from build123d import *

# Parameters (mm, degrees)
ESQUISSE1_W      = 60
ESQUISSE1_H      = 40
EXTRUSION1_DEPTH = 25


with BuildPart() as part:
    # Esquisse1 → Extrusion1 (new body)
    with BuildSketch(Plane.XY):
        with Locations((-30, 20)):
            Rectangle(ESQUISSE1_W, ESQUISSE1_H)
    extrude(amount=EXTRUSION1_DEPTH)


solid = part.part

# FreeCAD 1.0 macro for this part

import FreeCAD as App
import Part
import Sketcher
Q = App.Units.Quantity

doc = App.newDocument("Part")
params = doc.addObject("Spreadsheet::Sheet", "Params")
for row, (alias, value) in enumerate([
    ("sketch1_width", "60 mm"),
    ("sketch1_height", "40 mm"),
    ("pad1_length", "25 mm"),
], start=1):
    params.set(f"A{row}", alias)
    params.set(f"B{row}", "=" + value)
    params.setAlias(f"B{row}", alias)

body = doc.addObject("PartDesign::Body", "Body")

# Sketch on XY plane
sketch1 = doc.addObject("Sketcher::SketchObject", "Sketch")
body.addObject(sketch1)
sketch1.AttachmentSupport = (doc.XY_Plane, [""])
sketch1.MapMode = "FlatFace"
sketch1.addGeometry(Part.LineSegment(App.Vector(-60, 40, 0), App.Vector(-60, 0, 0)), False)
sketch1.addGeometry(Part.LineSegment(App.Vector(-60, 0, 0), App.Vector(0, 0, 0)), False)
sketch1.addGeometry(Part.LineSegment(App.Vector(0, 0, 0), App.Vector(0, 40, 0)), False)
sketch1.addGeometry(Part.LineSegment(App.Vector(0, 40, 0), App.Vector(-60, 40, 0)), False)
sketch1.addConstraint(Sketcher.Constraint("Coincident", 0, 2, 1, 1))
sketch1.addConstraint(Sketcher.Constraint("Coincident", 1, 2, 2, 1))
sketch1.addConstraint(Sketcher.Constraint("Coincident", 2, 2, 3, 1))
sketch1.addConstraint(Sketcher.Constraint("Coincident", 3, 2, 0, 1))
sketch1.addConstraint(Sketcher.Constraint("Vertical", 0))
sketch1.addConstraint(Sketcher.Constraint("Horizontal", 1))
sketch1.addConstraint(Sketcher.Constraint("Vertical", 2))
sketch1.addConstraint(Sketcher.Constraint("Horizontal", 3))
sketch1.addConstraint(Sketcher.Constraint("Coincident", 1, 2, -1, 1))
sketch1.addConstraint(Sketcher.Constraint("DistanceX", 1, 1, 1, 2, Q("60 mm")))
sketch1.addConstraint(Sketcher.Constraint("DistanceY", 0, 2, 0, 1, Q("40 mm")))
sketch1.setExpression("Constraints[9]", "Params.sketch1_width")
sketch1.setExpression("Constraints[10]", "Params.sketch1_height")
pad1 = doc.addObject("PartDesign::Pad", "Pad")
body.addObject(pad1)
pad1.Profile = sketch1
pad1.setExpression("Length", "Params.pad1_length")

doc.recompute()
